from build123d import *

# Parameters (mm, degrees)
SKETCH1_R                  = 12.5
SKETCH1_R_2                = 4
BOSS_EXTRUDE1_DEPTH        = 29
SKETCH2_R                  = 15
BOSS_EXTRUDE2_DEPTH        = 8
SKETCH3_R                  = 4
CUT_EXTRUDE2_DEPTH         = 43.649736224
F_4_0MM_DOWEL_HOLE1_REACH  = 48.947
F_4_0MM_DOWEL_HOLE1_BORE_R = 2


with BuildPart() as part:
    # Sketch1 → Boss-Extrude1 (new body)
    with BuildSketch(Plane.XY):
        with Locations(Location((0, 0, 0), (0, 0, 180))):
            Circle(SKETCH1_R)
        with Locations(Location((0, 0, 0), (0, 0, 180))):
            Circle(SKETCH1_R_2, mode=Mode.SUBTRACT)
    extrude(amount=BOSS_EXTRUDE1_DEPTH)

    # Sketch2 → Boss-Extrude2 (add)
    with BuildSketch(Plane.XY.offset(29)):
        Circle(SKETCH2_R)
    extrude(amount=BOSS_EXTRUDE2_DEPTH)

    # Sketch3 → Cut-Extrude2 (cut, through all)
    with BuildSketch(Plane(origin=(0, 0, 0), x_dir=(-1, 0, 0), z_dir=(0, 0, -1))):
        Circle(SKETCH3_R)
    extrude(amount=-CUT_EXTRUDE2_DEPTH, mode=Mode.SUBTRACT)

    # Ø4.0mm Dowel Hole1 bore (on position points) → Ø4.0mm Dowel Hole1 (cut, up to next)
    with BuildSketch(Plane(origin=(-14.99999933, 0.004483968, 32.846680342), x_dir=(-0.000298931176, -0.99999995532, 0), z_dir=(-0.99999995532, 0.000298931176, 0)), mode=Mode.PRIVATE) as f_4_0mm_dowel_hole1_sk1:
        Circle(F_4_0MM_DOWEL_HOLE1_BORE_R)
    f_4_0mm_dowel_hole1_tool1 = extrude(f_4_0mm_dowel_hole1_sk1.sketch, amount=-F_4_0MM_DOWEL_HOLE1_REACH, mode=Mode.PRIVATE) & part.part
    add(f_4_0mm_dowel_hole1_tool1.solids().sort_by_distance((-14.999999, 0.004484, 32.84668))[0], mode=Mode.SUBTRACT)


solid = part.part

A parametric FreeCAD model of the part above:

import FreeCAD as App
import Part
import Sketcher

V = App.Vector
Q = App.Units.Quantity

doc = App.newDocument("Part")
params = doc.addObject("Spreadsheet::Sheet", "Params")
for row, (alias, value) in enumerate([
    ("sketch1_diameter", "25 mm"),
    ("sketch1_diameter2", "8 mm"),
    ("pad1_length", "29 mm"),
    ("sketch2_diameter", "30 mm"),
    ("pad2_length", "8 mm"),
    ("sketch3_diameter", "8 mm"),
    ("sketch4_diameter", "4 mm"),
], start=1):
    params.set(f"A{row}", alias)
    params.set(f"B{row}", "=" + value)
    params.setAlias(f"B{row}", alias)

body = doc.addObject("PartDesign::Body", "Body")

sketch1 = body.newObject("Sketcher::SketchObject", "Sketch")
sketch1.AttachmentSupport = (doc.getObject("XY_Plane"), [""])
sketch1.MapMode = "FlatFace"
sketch1.addGeometry(Part.Circle(V(0, 0, 0), V(0, 0, 1), 12.5), False)
sketch1.addGeometry(Part.Circle(V(0, 0, 0), V(0, 0, 1), 4), False)
sketch1.addConstraint(Sketcher.Constraint("Coincident", 0, 3, -1, 1))
sketch1.addConstraint(Sketcher.Constraint("Coincident", 1, 3, -1, 1))
sketch1.addConstraint(Sketcher.Constraint("Diameter", 0, Q("25 mm")))
sketch1.addConstraint(Sketcher.Constraint("Diameter", 1, Q("8 mm")))
sketch1.setExpression("Constraints[2]", "Params.sketch1_diameter")
sketch1.setExpression("Constraints[3]", "Params.sketch1_diameter2")
pad1 = body.newObject("PartDesign::Pad", "Pad")
pad1.Profile = sketch1
pad1.setExpression("Length", "Params.pad1_length")

sketch2 = body.newObject("Sketcher::SketchObject", "Sketch001")
sketch2.AttachmentSupport = (doc.getObject("XY_Plane"), [""])
sketch2.MapMode = "FlatFace"
sketch2.AttachmentOffset = App.Placement(V(0, 0, 29), App.Rotation())
sketch2.addGeometry(Part.Circle(V(0, 0, 0), V(0, 0, 1), 15), False)
sketch2.addConstraint(Sketcher.Constraint("Coincident", 0, 3, -1, 1))
sketch2.addConstraint(Sketcher.Constraint("Diameter", 0, Q("30 mm")))
sketch2.setExpression("Constraints[1]", "Params.sketch2_diameter")
pad2 = body.newObject("PartDesign::Pad", "Pad001")
pad2.Profile = sketch2
pad2.setExpression("Length", "Params.pad2_length")

sketch3 = body.newObject("Sketcher::SketchObject", "Sketch002")
sketch3.AttachmentSupport = (doc.getObject("XY_Plane"), [""])
sketch3.MapMode = "FlatFace"
sketch3.addGeometry(Part.Circle(V(0, 0, 0), V(0, 0, 1), 4), False)
sketch3.addConstraint(Sketcher.Constraint("Coincident", 0, 3, -1, 1))
sketch3.addConstraint(Sketcher.Constraint("Diameter", 0, Q("8 mm")))
sketch3.setExpression("Constraints[1]", "Params.sketch3_diameter")
pocket1 = body.newObject("PartDesign::Pocket", "Pocket")
pocket1.Profile = sketch3
pocket1.Type = "ThroughAll"
pocket1.Reversed = True

sketch4 = body.newObject("Sketcher::SketchObject", "Sketch003")
sketch4.Placement = App.Placement(V(-14.999999, 0.004484, 32.84668), App.Rotation(V(-0.000298931, -0.999999955, 0), V(0, 0, 0.999999999), V(-0.999999955, 0.000298931, 0), "ZXY"))
sketch4.addGeometry(Part.Circle(V(0, 0, 0), V(0, 0, 1), 2), False)
sketch4.addConstraint(Sketcher.Constraint("Coincident", 0, 3, -1, 1))
sketch4.addConstraint(Sketcher.Constraint("Diameter", 0, Q("4 mm")))
sketch4.setExpression("Constraints[1]", "Params.sketch4_diameter")
pocket2 = body.newObject("PartDesign::Pocket", "Pocket001")
pocket2.Profile = sketch4
pocket2.Type = "UpToFirst"

doc.recompute()
